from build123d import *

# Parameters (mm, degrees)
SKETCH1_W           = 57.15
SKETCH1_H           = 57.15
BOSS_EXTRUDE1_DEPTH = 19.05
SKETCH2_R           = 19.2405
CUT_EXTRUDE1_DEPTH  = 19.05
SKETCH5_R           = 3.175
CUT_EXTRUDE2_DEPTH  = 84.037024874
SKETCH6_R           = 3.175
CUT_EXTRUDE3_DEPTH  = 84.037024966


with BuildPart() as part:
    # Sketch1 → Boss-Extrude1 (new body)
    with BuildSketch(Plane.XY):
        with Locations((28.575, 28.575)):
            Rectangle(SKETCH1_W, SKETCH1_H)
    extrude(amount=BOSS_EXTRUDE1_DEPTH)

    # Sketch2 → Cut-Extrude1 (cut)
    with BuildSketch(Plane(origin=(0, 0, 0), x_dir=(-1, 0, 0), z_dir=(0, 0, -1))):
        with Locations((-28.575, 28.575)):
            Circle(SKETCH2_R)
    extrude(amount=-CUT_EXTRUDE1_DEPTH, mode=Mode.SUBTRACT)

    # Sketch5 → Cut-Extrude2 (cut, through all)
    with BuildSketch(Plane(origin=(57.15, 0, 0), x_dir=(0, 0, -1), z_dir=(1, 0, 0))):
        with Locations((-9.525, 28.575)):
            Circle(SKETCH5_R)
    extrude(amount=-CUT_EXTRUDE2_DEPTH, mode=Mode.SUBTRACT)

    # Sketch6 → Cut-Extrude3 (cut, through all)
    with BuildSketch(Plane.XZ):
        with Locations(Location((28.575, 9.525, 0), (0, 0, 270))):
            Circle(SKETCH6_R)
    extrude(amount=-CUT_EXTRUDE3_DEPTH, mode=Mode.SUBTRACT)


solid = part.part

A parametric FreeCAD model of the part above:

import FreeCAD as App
import Part
import Sketcher
Q = App.Units.Quantity


def add_polygon(sketch, points):
    """Adds a closed chain of lines whose ends are joined by coincident constraints."""
    first, n = sketch.GeometryCount, len(points)
    for a, b in zip(points, points[1:] + points[:1]):
        sketch.addGeometry(Part.LineSegment(App.Vector(*a, 0), App.Vector(*b, 0)), False)
    for i in range(n):
        sketch.addConstraint(Sketcher.Constraint("Coincident", first + i, 2, first + (i + 1) % n, 1))

doc = App.newDocument("Part")
body = doc.addObject("PartDesign::Body", "Body")

# Sketch on XY plane
sketch1 = body.newObject("Sketcher::SketchObject", "Sketch")
sketch1.AttachmentSupport = (doc.getObject("XY_Plane"), [""])
sketch1.MapMode = "FlatFace"
add_polygon(sketch1, [(0, 57), (0, 0), (57, 0), (57, 57)])  # lines 0-3
sketch1.addConstraint(Sketcher.Constraint("Vertical", 0))
sketch1.addConstraint(Sketcher.Constraint("Horizontal", 1))
sketch1.addConstraint(Sketcher.Constraint("Vertical", 2))
sketch1.addConstraint(Sketcher.Constraint("Horizontal", 3))
sketch1.addConstraint(Sketcher.Constraint("Coincident", 0, 2, -1, 1))
sketch1.addConstraint(Sketcher.Constraint("Equal", 3, 0))
sketch1.addConstraint(Sketcher.Constraint("DistanceX", 1, 1, 1, 2, Q("2.25 in")))
pad1 = body.newObject("PartDesign::Pad", "Pad")
pad1.Profile = sketch1
pad1.Length = Q("0.75 in")

# Sketch on XY plane
sketch2 = body.newObject("Sketcher::SketchObject", "Sketch001")
sketch2.AttachmentSupport = (doc.getObject("XY_Plane"), [""])
sketch2.MapMode = "FlatFace"
sketch2.addGeometry(Part.Circle(App.Vector(29, 29, 0), App.Vector(0, 0, 1), 19), False)
sketch2.addConstraint(Sketcher.Constraint("Diameter", 0, Q("1.515 in")))
sketch2.addConstraint(Sketcher.Constraint("DistanceX", -1, 1, 0, 3, Q("1.125 in")))
sketch2.addConstraint(Sketcher.Constraint("DistanceY", -1, 1, 0, 3, Q("1.125 in")))
pocket1 = body.newObject("PartDesign::Pocket", "Pocket")
pocket1.Profile = sketch2
pocket1.Length = Q("0.75 in")
pocket1.Reversed = True

# Sketch on YZ plane
sketch3 = body.newObject("Sketcher::SketchObject", "Sketch002")
sketch3.AttachmentSupport = (doc.getObject("YZ_Plane"), [""])
sketch3.MapMode = "FlatFace"
sketch3.AttachmentOffset = App.Placement(App.Vector(0, 0, 2.25 * 25.4), App.Rotation())
sketch3.addGeometry(Part.Circle(App.Vector(28.6, 9.5, 0), App.Vector(0, 0, 1), 3.2), False)
sketch3.addConstraint(Sketcher.Constraint("Diameter", 0, Q("0.25 in")))
sketch3.addConstraint(Sketcher.Constraint("DistanceX", -1, 1, 0, 3, Q("1.125 in")))
sketch3.addConstraint(Sketcher.Constraint("DistanceY", -1, 1, 0, 3, Q("0.375 in")))
pocket2 = body.newObject("PartDesign::Pocket", "Pocket001")
pocket2.Profile = sketch3
pocket2.Type = "ThroughAll"

# Sketch on XZ plane
sketch4 = body.newObject("Sketcher::SketchObject", "Sketch003")
sketch4.AttachmentSupport = (doc.getObject("XZ_Plane"), [""])
sketch4.MapMode = "FlatFace"
sketch4.addGeometry(Part.Circle(App.Vector(28.6, 9.5, 0), App.Vector(0, 0, 1), 3.2), False)
sketch4.addConstraint(Sketcher.Constraint("Diameter", 0, Q("0.25 in")))
sketch4.addConstraint(Sketcher.Constraint("DistanceX", -1, 1, 0, 3, Q("1.125 in")))
sketch4.addConstraint(Sketcher.Constraint("DistanceY", -1, 1, 0, 3, Q("0.375 in")))
pocket3 = body.newObject("PartDesign::Pocket", "Pocket002")
pocket3.Profile = sketch4
pocket3.Type = "ThroughAll"

doc.recompute()
